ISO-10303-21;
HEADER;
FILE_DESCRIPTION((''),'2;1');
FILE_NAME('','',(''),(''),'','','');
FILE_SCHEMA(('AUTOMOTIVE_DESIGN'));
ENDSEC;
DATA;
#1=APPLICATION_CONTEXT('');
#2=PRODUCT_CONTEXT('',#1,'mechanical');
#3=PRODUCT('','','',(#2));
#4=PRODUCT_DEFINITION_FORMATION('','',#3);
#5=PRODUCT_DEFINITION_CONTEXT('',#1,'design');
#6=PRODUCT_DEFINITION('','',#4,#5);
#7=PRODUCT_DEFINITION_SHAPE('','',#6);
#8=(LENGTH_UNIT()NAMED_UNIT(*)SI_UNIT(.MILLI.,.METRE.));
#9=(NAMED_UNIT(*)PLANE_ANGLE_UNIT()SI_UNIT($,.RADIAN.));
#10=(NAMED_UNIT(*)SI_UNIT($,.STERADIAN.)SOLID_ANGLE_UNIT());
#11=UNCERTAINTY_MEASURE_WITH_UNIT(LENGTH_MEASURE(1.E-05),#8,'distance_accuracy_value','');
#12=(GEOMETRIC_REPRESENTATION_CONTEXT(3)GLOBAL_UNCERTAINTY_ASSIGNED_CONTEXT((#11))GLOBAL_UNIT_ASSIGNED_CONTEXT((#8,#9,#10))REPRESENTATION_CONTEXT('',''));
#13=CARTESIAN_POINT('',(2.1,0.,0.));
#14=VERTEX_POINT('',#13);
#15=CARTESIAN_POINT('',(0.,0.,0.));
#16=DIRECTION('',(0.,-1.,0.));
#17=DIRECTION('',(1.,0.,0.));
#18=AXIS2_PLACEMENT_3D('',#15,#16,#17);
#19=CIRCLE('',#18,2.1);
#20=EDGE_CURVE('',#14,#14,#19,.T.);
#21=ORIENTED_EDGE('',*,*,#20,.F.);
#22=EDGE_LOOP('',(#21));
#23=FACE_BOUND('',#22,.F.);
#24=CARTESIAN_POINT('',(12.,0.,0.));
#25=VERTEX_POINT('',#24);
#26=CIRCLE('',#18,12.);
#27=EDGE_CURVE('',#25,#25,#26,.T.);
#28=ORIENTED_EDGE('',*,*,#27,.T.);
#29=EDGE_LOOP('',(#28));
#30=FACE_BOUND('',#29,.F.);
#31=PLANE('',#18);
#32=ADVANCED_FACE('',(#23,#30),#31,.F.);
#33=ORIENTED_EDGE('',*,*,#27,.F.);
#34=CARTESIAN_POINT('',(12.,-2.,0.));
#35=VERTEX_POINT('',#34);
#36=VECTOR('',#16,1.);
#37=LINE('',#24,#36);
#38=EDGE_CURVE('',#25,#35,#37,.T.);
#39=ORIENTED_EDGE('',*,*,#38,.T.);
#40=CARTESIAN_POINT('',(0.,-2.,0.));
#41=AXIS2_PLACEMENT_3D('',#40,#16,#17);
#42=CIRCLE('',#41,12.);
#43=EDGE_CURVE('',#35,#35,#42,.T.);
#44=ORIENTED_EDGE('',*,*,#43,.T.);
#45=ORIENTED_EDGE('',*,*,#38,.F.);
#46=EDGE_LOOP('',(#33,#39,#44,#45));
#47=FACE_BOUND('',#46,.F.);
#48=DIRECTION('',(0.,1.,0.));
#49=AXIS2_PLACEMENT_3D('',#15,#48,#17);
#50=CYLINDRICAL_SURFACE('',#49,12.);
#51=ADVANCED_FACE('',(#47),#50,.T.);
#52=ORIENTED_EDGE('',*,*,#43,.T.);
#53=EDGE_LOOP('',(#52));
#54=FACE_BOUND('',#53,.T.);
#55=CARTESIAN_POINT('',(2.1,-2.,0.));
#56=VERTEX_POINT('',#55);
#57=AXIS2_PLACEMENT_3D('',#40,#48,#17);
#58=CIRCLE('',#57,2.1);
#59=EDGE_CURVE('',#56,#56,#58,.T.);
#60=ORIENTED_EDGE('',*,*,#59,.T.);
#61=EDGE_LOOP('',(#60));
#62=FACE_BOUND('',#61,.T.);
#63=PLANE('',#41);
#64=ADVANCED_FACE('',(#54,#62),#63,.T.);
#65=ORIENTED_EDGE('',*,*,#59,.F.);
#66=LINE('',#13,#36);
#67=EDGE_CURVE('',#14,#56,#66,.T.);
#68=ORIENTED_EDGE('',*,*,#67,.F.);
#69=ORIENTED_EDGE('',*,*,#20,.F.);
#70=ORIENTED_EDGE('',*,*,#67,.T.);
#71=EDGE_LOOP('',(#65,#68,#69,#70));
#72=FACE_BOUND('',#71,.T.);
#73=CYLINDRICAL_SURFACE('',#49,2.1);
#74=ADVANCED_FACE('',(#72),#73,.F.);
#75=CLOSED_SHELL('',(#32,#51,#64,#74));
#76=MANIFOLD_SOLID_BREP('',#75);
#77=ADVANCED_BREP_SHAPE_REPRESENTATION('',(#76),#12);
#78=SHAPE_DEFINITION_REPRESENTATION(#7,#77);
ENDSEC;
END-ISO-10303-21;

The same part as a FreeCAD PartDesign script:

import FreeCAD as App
import Part
import Sketcher

V = App.Vector

doc = App.newDocument("Part")
body = doc.addObject("PartDesign::Body", "Body")

# Sketch on XZ plane
sketch1 = doc.addObject("Sketcher::SketchObject", "Sketch")
body.addObject(sketch1)
sketch1.AttachmentSupport = (doc.XZ_Plane, [""])
sketch1.MapMode = "FlatFace"
sketch1.addGeometry(Part.Circle(V(0, 0, 0), V(0, 0, 1), 2.1), False)
sketch1.addConstraint(Sketcher.Constraint("Coincident", 0, 3, -1, 1))
sketch1.addConstraint(Sketcher.Constraint("Diameter", 0, 4.2))
pad1 = doc.addObject("PartDesign::Pad", "Pad")
body.addObject(pad1)
pad1.Profile = sketch1
pad1.Length = 20
body2 = doc.addObject("PartDesign::Body", "Body001")

# Sketch on XZ plane
sketch2 = doc.addObject("Sketcher::SketchObject", "Sketch001")
body2.addObject(sketch2)
sketch2.AttachmentSupport = (doc.getObject("XZ_Plane001"), [""])
sketch2.MapMode = "FlatFace"
sketch2.addGeometry(Part.Circle(V(0, 0, 0), V(0, 0, 1), 12), False)
sketch2.addConstraint(Sketcher.Constraint("Coincident", 0, 3, -1, 1))
sketch2.addConstraint(Sketcher.Constraint("Diameter", 0, 24.0))
pad2 = doc.addObject("PartDesign::Pad", "Pad001")
body2.addObject(pad2)
pad2.Profile = sketch2
pad2.Length = 2
doc.recompute()

boolean = doc.addObject("PartDesign::Boolean", "Boolean")
body2.addObject(boolean)
boolean.Type = "Cut"
boolean.addObjects([body])

doc.recompute()
